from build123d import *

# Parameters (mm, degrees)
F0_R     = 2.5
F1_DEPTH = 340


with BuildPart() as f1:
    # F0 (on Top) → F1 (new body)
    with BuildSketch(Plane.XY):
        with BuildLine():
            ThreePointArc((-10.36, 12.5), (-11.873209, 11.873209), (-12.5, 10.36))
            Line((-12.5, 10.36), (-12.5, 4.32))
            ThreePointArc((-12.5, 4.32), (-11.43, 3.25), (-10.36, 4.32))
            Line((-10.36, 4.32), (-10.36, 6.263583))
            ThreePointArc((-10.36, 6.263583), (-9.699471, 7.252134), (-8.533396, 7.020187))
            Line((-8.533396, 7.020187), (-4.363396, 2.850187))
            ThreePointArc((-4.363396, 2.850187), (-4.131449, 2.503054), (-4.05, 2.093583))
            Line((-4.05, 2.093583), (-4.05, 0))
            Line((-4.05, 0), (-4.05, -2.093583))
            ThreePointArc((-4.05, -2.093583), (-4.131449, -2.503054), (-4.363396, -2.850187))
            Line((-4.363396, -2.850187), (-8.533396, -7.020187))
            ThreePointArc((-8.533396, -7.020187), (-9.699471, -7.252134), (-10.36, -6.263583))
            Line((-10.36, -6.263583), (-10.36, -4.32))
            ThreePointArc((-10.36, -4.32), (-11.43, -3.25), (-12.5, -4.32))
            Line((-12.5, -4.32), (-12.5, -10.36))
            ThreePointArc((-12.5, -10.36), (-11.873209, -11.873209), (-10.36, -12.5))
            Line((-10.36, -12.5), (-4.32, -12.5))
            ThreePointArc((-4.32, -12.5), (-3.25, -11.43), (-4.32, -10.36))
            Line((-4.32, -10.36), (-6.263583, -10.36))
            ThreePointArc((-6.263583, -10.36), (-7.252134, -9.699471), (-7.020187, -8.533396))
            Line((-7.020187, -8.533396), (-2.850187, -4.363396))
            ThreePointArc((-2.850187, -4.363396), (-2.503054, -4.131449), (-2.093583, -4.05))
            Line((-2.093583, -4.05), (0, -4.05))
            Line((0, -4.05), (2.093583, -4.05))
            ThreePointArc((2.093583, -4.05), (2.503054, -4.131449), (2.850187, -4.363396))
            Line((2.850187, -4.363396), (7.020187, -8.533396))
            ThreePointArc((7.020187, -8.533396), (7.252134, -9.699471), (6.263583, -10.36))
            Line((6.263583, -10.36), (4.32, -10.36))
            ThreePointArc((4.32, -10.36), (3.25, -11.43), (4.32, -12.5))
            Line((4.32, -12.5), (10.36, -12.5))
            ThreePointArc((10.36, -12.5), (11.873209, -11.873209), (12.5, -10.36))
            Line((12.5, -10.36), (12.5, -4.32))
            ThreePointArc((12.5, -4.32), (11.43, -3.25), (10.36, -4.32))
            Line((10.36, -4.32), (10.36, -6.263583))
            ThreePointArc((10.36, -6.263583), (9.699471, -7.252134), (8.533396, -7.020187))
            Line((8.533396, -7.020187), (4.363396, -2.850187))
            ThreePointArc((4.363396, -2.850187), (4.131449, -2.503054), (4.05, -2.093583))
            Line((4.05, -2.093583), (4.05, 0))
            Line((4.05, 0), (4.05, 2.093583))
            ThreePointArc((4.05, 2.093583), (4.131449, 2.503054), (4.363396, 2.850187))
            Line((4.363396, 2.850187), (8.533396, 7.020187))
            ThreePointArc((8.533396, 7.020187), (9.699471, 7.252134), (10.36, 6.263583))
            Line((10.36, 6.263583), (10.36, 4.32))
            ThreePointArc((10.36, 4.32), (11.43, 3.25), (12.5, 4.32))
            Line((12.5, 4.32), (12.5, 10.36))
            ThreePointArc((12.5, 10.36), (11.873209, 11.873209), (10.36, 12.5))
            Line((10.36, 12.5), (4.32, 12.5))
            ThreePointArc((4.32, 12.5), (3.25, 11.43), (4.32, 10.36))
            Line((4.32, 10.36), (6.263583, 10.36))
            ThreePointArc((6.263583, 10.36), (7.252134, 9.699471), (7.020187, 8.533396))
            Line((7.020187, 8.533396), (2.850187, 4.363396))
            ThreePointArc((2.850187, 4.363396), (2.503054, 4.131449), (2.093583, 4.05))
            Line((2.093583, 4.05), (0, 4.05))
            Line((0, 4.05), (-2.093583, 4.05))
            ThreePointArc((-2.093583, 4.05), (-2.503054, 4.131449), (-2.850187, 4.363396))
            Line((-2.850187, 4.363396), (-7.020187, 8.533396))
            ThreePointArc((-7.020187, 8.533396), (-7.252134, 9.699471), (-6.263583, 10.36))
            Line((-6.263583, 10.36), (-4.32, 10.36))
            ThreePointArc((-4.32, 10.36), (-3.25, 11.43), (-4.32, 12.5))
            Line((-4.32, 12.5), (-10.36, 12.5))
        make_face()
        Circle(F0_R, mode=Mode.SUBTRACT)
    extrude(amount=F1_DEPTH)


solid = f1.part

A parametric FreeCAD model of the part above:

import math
import FreeCAD as App
import Part
import Sketcher

V = App.Vector
Q = App.Units.Quantity

doc = App.newDocument("Part")
body = doc.addObject("PartDesign::Body", "Body")

# Sketch on XY plane
sketch1 = body.newObject("Sketcher::SketchObject", "Sketch")
sketch1.AttachmentSupport = (doc.getObject("XY_Plane"), [""])
sketch1.MapMode = "FlatFace"
sketch1.addGeometry(Part.ArcOfCircle(Part.Circle(V(-10.4, 10.4, 0), V(0, 0, 1), 2.1), math.radians(90), math.radians(180)), False)
sketch1.addGeometry(Part.LineSegment(V(-12.5, 10.4, 0), V(-12.5, 4.3, 0)), False)
sketch1.addGeometry(Part.ArcOfCircle(Part.Circle(V(-11.4, 4.3, 0), V(0, 0, 1), 1.1), math.radians(180), math.radians(360)), False)
sketch1.addGeometry(Part.LineSegment(V(-10.4, 4.3, 0), V(-10.4, 6.3, 0)), False)
sketch1.addGeometry(Part.ArcOfCircle(Part.Circle(V(-9.3, 6.3, 0), V(0, 0, 1), 1.1), math.radians(45), math.radians(180)), False)
sketch1.addGeometry(Part.LineSegment(V(-8.5, 7, 0), V(-4.4, 2.9, 0)), False)
sketch1.addGeometry(Part.ArcOfCircle(Part.Circle(V(-5.1, 2.1, 0), V(0, 0, 1), 1.1), math.radians(0), math.radians(45)), False)
sketch1.addGeometry(Part.LineSegment(V(-4, 2.1, 0), V(-4, -2.1, 0)), False)
sketch1.addGeometry(Part.ArcOfCircle(Part.Circle(V(-5.1, -2.1, 0), V(0, 0, 1), 1.1), math.radians(-45), math.radians(0)), False)
sketch1.addGeometry(Part.LineSegment(V(-4.4, -2.9, 0), V(-8.5, -7, 0)), False)
sketch1.addGeometry(Part.ArcOfCircle(Part.Circle(V(-9.3, -6.3, 0), V(0, 0, 1), 1.1), math.radians(-180), math.radians(-45)), False)
sketch1.addGeometry(Part.LineSegment(V(-10.4, -6.3, 0), V(-10.4, -4.3, 0)), False)
sketch1.addGeometry(Part.ArcOfCircle(Part.Circle(V(-11.4, -4.3, 0), V(0, 0, 1), 1.1), math.radians(0), math.radians(180)), False)
sketch1.addGeometry(Part.LineSegment(V(-12.5, -4.3, 0), V(-12.5, -10.4, 0)), False)
sketch1.addGeometry(Part.ArcOfCircle(Part.Circle(V(-10.4, -10.4, 0), V(0, 0, 1), 2.1), math.radians(180), math.radians(270)), False)
sketch1.addGeometry(Part.LineSegment(V(-10.4, -12.5, 0), V(-4.3, -12.5, 0)), False)
sketch1.addGeometry(Part.ArcOfCircle(Part.Circle(V(-4.3, -11.4, 0), V(0, 0, 1), 1.1), math.radians(-90), math.radians(90)), False)
sketch1.addGeometry(Part.LineSegment(V(-4.3, -10.4, 0), V(-6.3, -10.4, 0)), False)
sketch1.addGeometry(Part.ArcOfCircle(Part.Circle(V(-6.3, -9.3, 0), V(0, 0, 1), 1.1), math.radians(135), math.radians(270)), False)
sketch1.addGeometry(Part.LineSegment(V(-7, -8.5, 0), V(-2.9, -4.4, 0)), False)
sketch1.addGeometry(Part.ArcOfCircle(Part.Circle(V(-2.1, -5.1, 0), V(0, 0, 1), 1.1), math.radians(90), math.radians(135)), False)
sketch1.addGeometry(Part.LineSegment(V(-2.1, -4, 0), V(2.1, -4, 0)), False)
sketch1.addGeometry(Part.ArcOfCircle(Part.Circle(V(2.1, -5.1, 0), V(0, 0, 1), 1.1), math.radians(45), math.radians(90)), False)
sketch1.addGeometry(Part.LineSegment(V(2.9, -4.4, 0), V(7, -8.5, 0)), False)
sketch1.addGeometry(Part.ArcOfCircle(Part.Circle(V(6.3, -9.3, 0), V(0, 0, 1), 1.1), math.radians(-90), math.radians(45)), False)
sketch1.addGeometry(Part.LineSegment(V(6.3, -10.4, 0), V(4.3, -10.4, 0)), False)
sketch1.addGeometry(Part.ArcOfCircle(Part.Circle(V(4.3, -11.4, 0), V(0, 0, 1), 1.1), math.radians(90), math.radians(270)), False)
sketch1.addGeometry(Part.LineSegment(V(4.3, -12.5, 0), V(10.4, -12.5, 0)), False)
sketch1.addGeometry(Part.ArcOfCircle(Part.Circle(V(10.4, -10.4, 0), V(0, 0, 1), 2.1), math.radians(-90), math.radians(0)), False)
sketch1.addGeometry(Part.LineSegment(V(12.5, -10.4, 0), V(12.5, -4.3, 0)), False)
sketch1.addGeometry(Part.ArcOfCircle(Part.Circle(V(11.4, -4.3, 0), V(0, 0, 1), 1.1), math.radians(0), math.radians(180)), False)
sketch1.addGeometry(Part.LineSegment(V(10.4, -4.3, 0), V(10.4, -6.3, 0)), False)
sketch1.addGeometry(Part.ArcOfCircle(Part.Circle(V(9.3, -6.3, 0), V(0, 0, 1), 1.1), math.radians(-135), math.radians(0)), False)
sketch1.addGeometry(Part.LineSegment(V(8.5, -7, 0), V(4.4, -2.9, 0)), False)
sketch1.addGeometry(Part.ArcOfCircle(Part.Circle(V(5.1, -2.1, 0), V(0, 0, 1), 1.1), math.radians(-180), math.radians(-135)), False)
sketch1.addGeometry(Part.LineSegment(V(4, -2.1, 0), V(4, 2.1, 0)), False)
sketch1.addGeometry(Part.ArcOfCircle(Part.Circle(V(5.1, 2.1, 0), V(0, 0, 1), 1.1), math.radians(135), math.radians(180)), False)
sketch1.addGeometry(Part.LineSegment(V(4.4, 2.9, 0), V(8.5, 7, 0)), False)
sketch1.addGeometry(Part.ArcOfCircle(Part.Circle(V(9.3, 6.3, 0), V(0, 0, 1), 1.1), math.radians(0), math.radians(135)), False)
sketch1.addGeometry(Part.LineSegment(V(10.4, 6.3, 0), V(10.4, 4.3, 0)), False)
sketch1.addGeometry(Part.ArcOfCircle(Part.Circle(V(11.4, 4.3, 0), V(0, 0, 1), 1.1), math.radians(180), math.radians(360)), False)
sketch1.addGeometry(Part.LineSegment(V(12.5, 4.3, 0), V(12.5, 10.4, 0)), False)
sketch1.addGeometry(Part.ArcOfCircle(Part.Circle(V(10.4, 10.4, 0), V(0, 0, 1), 2.1), math.radians(0), math.radians(90)), False)
sketch1.addGeometry(Part.LineSegment(V(10.4, 12.5, 0), V(4.3, 12.5, 0)), False)
sketch1.addGeometry(Part.ArcOfCircle(Part.Circle(V(4.3, 11.4, 0), V(0, 0, 1), 1.1), math.radians(90), math.radians(270)), False)
sketch1.addGeometry(Part.LineSegment(V(4.3, 10.4, 0), V(6.3, 10.4, 0)), False)
sketch1.addGeometry(Part.ArcOfCircle(Part.Circle(V(6.3, 9.3, 0), V(0, 0, 1), 1.1), math.radians(-45), math.radians(90)), False)
sketch1.addGeometry(Part.LineSegment(V(7, 8.5, 0), V(2.9, 4.4, 0)), False)
sketch1.addGeometry(Part.ArcOfCircle(Part.Circle(V(2.1, 5.1, 0), V(0, 0, 1), 1.1), math.radians(-90), math.radians(-45)), False)
sketch1.addGeometry(Part.LineSegment(V(2.1, 4, 0), V(-2.1, 4, 0)), False)
sketch1.addGeometry(Part.ArcOfCircle(Part.Circle(V(-2.1, 5.1, 0), V(0, 0, 1), 1.1), math.radians(-135), math.radians(-90)), False)
sketch1.addGeometry(Part.LineSegment(V(-2.9, 4.4, 0), V(-7, 8.5, 0)), False)
sketch1.addGeometry(Part.ArcOfCircle(Part.Circle(V(-6.3, 9.3, 0), V(0, 0, 1), 1.1), math.radians(90), math.radians(225)), False)
sketch1.addGeometry(Part.LineSegment(V(-6.3, 10.4, 0), V(-4.3, 10.4, 0)), False)
sketch1.addGeometry(Part.ArcOfCircle(Part.Circle(V(-4.3, 11.4, 0), V(0, 0, 1), 1.1), math.radians(-90), math.radians(90)), False)
sketch1.addGeometry(Part.LineSegment(V(-4.3, 12.5, 0), V(-10.4, 12.5, 0)), False)
sketch1.addGeometry(Part.Circle(V(0, 0, 0), V(0, 0, 1), 2.5), False)
sketch1.addConstraint(Sketcher.Constraint("Tangent", 0, 2, 1, 1))
sketch1.addConstraint(Sketcher.Constraint("Tangent", 1, 2, 2, 1))
sketch1.addConstraint(Sketcher.Constraint("Tangent", 2, 2, 3, 1))
sketch1.addConstraint(Sketcher.Constraint("Tangent", 3, 2, 4, 2))
sketch1.addConstraint(Sketcher.Constraint("Tangent", 4, 1, 5, 1))
sketch1.addConstraint(Sketcher.Constraint("Tangent", 5, 2, 6, 2))
sketch1.addConstraint(Sketcher.Constraint("Tangent", 6, 1, 7, 1))
sketch1.addConstraint(Sketcher.Constraint("Tangent", 7, 2, 8, 2))
sketch1.addConstraint(Sketcher.Constraint("Tangent", 8, 1, 9, 1))
sketch1.addConstraint(Sketcher.Constraint("Tangent", 9, 2, 10, 2))
sketch1.addConstraint(Sketcher.Constraint("Tangent", 10, 1, 11, 1))
sketch1.addConstraint(Sketcher.Constraint("Tangent", 11, 2, 12, 1))
sketch1.addConstraint(Sketcher.Constraint("Tangent", 12, 2, 13, 1))
sketch1.addConstraint(Sketcher.Constraint("Tangent", 13, 2, 14, 1))
sketch1.addConstraint(Sketcher.Constraint("Tangent", 14, 2, 15, 1))
sketch1.addConstraint(Sketcher.Constraint("Tangent", 15, 2, 16, 1))
sketch1.addConstraint(Sketcher.Constraint("Tangent", 16, 2, 17, 1))
sketch1.addConstraint(Sketcher.Constraint("Tangent", 17, 2, 18, 2))
sketch1.addConstraint(Sketcher.Constraint("Tangent", 18, 1, 19, 1))
sketch1.addConstraint(Sketcher.Constraint("Tangent", 19, 2, 20, 2))
sketch1.addConstraint(Sketcher.Constraint("Tangent", 20, 1, 21, 1))
sketch1.addConstraint(Sketcher.Constraint("Tangent", 21, 2, 22, 2))
sketch1.addConstraint(Sketcher.Constraint("Tangent", 22, 1, 23, 1))
sketch1.addConstraint(Sketcher.Constraint("Tangent", 23, 2, 24, 2))
sketch1.addConstraint(Sketcher.Constraint("Tangent", 24, 1, 25, 1))
sketch1.addConstraint(Sketcher.Constraint("Tangent", 25, 2, 26, 1))
sketch1.addConstraint(Sketcher.Constraint("Tangent", 26, 2, 27, 1))
sketch1.addConstraint(Sketcher.Constraint("Tangent", 27, 2, 28, 1))
sketch1.addConstraint(Sketcher.Constraint("Tangent", 28, 2, 29, 1))
sketch1.addConstraint(Sketcher.Constraint("Tangent", 29, 2, 30, 1))
sketch1.addConstraint(Sketcher.Constraint("Tangent", 30, 2, 31, 1))
sketch1.addConstraint(Sketcher.Constraint("Tangent", 31, 2, 32, 2))
sketch1.addConstraint(Sketcher.Constraint("Tangent", 32, 1, 33, 1))
sketch1.addConstraint(Sketcher.Constraint("Tangent", 33, 2, 34, 2))
sketch1.addConstraint(Sketcher.Constraint("Tangent", 34, 1, 35, 1))
sketch1.addConstraint(Sketcher.Constraint("Tangent", 35, 2, 36, 2))
sketch1.addConstraint(Sketcher.Constraint("Tangent", 36, 1, 37, 1))
sketch1.addConstraint(Sketcher.Constraint("Tangent", 37, 2, 38, 2))
sketch1.addConstraint(Sketcher.Constraint("Tangent", 38, 1, 39, 1))
sketch1.addConstraint(Sketcher.Constraint("Tangent", 39, 2, 40, 1))
sketch1.addConstraint(Sketcher.Constraint("Tangent", 40, 2, 41, 1))
sketch1.addConstraint(Sketcher.Constraint("Tangent", 41, 2, 42, 1))
sketch1.addConstraint(Sketcher.Constraint("Tangent", 42, 2, 43, 1))
sketch1.addConstraint(Sketcher.Constraint("Tangent", 43, 2, 44, 1))
sketch1.addConstraint(Sketcher.Constraint("Tangent", 44, 2, 45, 1))
sketch1.addConstraint(Sketcher.Constraint("Tangent", 45, 2, 46, 2))
sketch1.addConstraint(Sketcher.Constraint("Tangent", 46, 1, 47, 1))
sketch1.addConstraint(Sketcher.Constraint("Tangent", 47, 2, 48, 2))
sketch1.addConstraint(Sketcher.Constraint("Tangent", 48, 1, 49, 1))
sketch1.addConstraint(Sketcher.Constraint("Tangent", 49, 2, 50, 2))
sketch1.addConstraint(Sketcher.Constraint("Tangent", 50, 1, 51, 1))
sketch1.addConstraint(Sketcher.Constraint("Tangent", 51, 2, 52, 2))
sketch1.addConstraint(Sketcher.Constraint("Tangent", 52, 1, 53, 1))
sketch1.addConstraint(Sketcher.Constraint("Tangent", 53, 2, 54, 1))
sketch1.addConstraint(Sketcher.Constraint("Tangent", 54, 2, 55, 1))
sketch1.addConstraint(Sketcher.Constraint("Tangent", 55, 2, 0, 1))
sketch1.addConstraint(Sketcher.Constraint("Vertical", 1))
sketch1.addConstraint(Sketcher.Constraint("Vertical", 3))
sketch1.addConstraint(Sketcher.Constraint("Vertical", 7))
sketch1.addConstraint(Sketcher.Constraint("Vertical", 11))
sketch1.addConstraint(Sketcher.Constraint("Vertical", 13))
sketch1.addConstraint(Sketcher.Constraint("Horizontal", 15))
sketch1.addConstraint(Sketcher.Constraint("Horizontal", 17))
sketch1.addConstraint(Sketcher.Constraint("Horizontal", 21))
sketch1.addConstraint(Sketcher.Constraint("Horizontal", 25))
sketch1.addConstraint(Sketcher.Constraint("Horizontal", 27))
sketch1.addConstraint(Sketcher.Constraint("Vertical", 29))
sketch1.addConstraint(Sketcher.Constraint("Vertical", 31))
sketch1.addConstraint(Sketcher.Constraint("Vertical", 35))
sketch1.addConstraint(Sketcher.Constraint("Vertical", 39))
sketch1.addConstraint(Sketcher.Constraint("Vertical", 41))
sketch1.addConstraint(Sketcher.Constraint("Horizontal", 43))
sketch1.addConstraint(Sketcher.Constraint("Horizontal", 45))
sketch1.addConstraint(Sketcher.Constraint("Horizontal", 49))
sketch1.addConstraint(Sketcher.Constraint("Horizontal", 53))
sketch1.addConstraint(Sketcher.Constraint("Horizontal", 55))
sketch1.addConstraint(Sketcher.Constraint("Coincident", 56, 3, -1, 1))
sketch1.addConstraint(Sketcher.Constraint("Equal", 2, 4))
sketch1.addConstraint(Sketcher.Constraint("Equal", 4, 6))
sketch1.addConstraint(Sketcher.Constraint("Equal", 6, 8))
sketch1.addConstraint(Sketcher.Constraint("Equal", 8, 10))
sketch1.addConstraint(Sketcher.Constraint("Equal", 10, 12))
sketch1.addConstraint(Sketcher.Constraint("Equal", 0, 14))
sketch1.addConstraint(Sketcher.Constraint("Equal", 12, 16))
sketch1.addConstraint(Sketcher.Constraint("Equal", 16, 18))
sketch1.addConstraint(Sketcher.Constraint("Equal", 18, 20))
sketch1.addConstraint(Sketcher.Constraint("Equal", 20, 22))
sketch1.addConstraint(Sketcher.Constraint("Equal", 22, 24))
sketch1.addConstraint(Sketcher.Constraint("Equal", 24, 26))
sketch1.addConstraint(Sketcher.Constraint("Equal", 14, 28))
sketch1.addConstraint(Sketcher.Constraint("Equal", 26, 30))
sketch1.addConstraint(Sketcher.Constraint("Equal", 30, 32))
sketch1.addConstraint(Sketcher.Constraint("Equal", 32, 34))
sketch1.addConstraint(Sketcher.Constraint("Equal", 34, 36))
sketch1.addConstraint(Sketcher.Constraint("Equal", 36, 38))
sketch1.addConstraint(Sketcher.Constraint("Equal", 38, 40))
sketch1.addConstraint(Sketcher.Constraint("Equal", 28, 42))
sketch1.addConstraint(Sketcher.Constraint("Equal", 40, 44))
sketch1.addConstraint(Sketcher.Constraint("Equal", 44, 46))
sketch1.addConstraint(Sketcher.Constraint("Equal", 46, 48))
sketch1.addConstraint(Sketcher.Constraint("Equal", 48, 50))
sketch1.addConstraint(Sketcher.Constraint("Equal", 50, 52))
sketch1.addConstraint(Sketcher.Constraint("Equal", 52, 54))
sketch1.addConstraint(Sketcher.Constraint("Symmetric", 0, 3, 28, 3, -1, 1))
sketch1.addConstraint(Sketcher.Constraint("Symmetric", 6, 3, 34, 3, -1, 1))
sketch1.addConstraint(Sketcher.Constraint("Symmetric", 10, 3, 38, 3, -1, 1))
sketch1.addConstraint(Sketcher.Constraint("Symmetric", 16, 3, 44, 3, -1, 1))
sketch1.addConstraint(Sketcher.Constraint("Symmetric", 20, 3, 48, 3, -1, 1))
sketch1.addConstraint(Sketcher.Constraint("Symmetric", 22, 1, 50, 1, -1, 1))
sketch1.addConstraint(Sketcher.Constraint("Symmetric", 18, 3, 24, 3, -2))
sketch1.addConstraint(Sketcher.Constraint("Symmetric", 12, 3, 30, 3, -2))
sketch1.addConstraint(Sketcher.Constraint("Symmetric", 9, 2, 32, 1, -2))
sketch1.addConstraint(Sketcher.Constraint("Symmetric", 5, 2, 36, 1, -2))
sketch1.addConstraint(Sketcher.Constraint("Symmetric", 47, 2, 50, 1, -2))
sketch1.addConstraint(Sketcher.Constraint("Perpendicular", 5, 9))
sketch1.addConstraint(Sketcher.Constraint("Parallel", 9, 19))
sketch1.addConstraint(Sketcher.Constraint("Horizontal", 2, 3, 40, 3))
sketch1.addConstraint(Sketcher.Constraint("Horizontal", 13, 2, 16, 2))
sketch1.addConstraint(Sketcher.Constraint("Vertical", 26, 3, 44, 3))
sketch1.addConstraint(Sketcher.Constraint("Vertical", 16, 3, 54, 3))
sketch1.addConstraint(Sketcher.Constraint("Equal", 55, 1))
sketch1.addConstraint(Sketcher.Constraint("Equal", 53, 3))
sketch1.addConstraint(Sketcher.Constraint("Equal", 49, 7))
sketch1.addConstraint(Sketcher.Constraint("Equal", 3, 11))
sketch1.addConstraint(Sketcher.Constraint("Equal", 9, 19))
sketch1.addConstraint(Sketcher.Constraint("Diameter", 56, Q("5 mm")))
sketch1.addConstraint(Sketcher.Constraint("Radius", 0, Q("2.139998 mm")))
sketch1.addConstraint(Sketcher.Constraint("DistanceX", 15, 1, 15, 2, Q("6.04 mm")))
sketch1.addConstraint(Sketcher.Constraint("DistanceX", 0, 2, -1, 1, Q("12.5 mm")))
sketch1.addConstraint(Sketcher.Constraint("DistanceX", 6, 3, -1, 1, Q("5.12 mm")))
sketch1.addConstraint(Sketcher.Constraint("DistanceX", 17, 2, 17, 1, Q("1.943583 mm")))
pad1 = body.newObject("PartDesign::Pad", "Pad")
pad1.Profile = sketch1
pad1.Length = 340

doc.recompute()
